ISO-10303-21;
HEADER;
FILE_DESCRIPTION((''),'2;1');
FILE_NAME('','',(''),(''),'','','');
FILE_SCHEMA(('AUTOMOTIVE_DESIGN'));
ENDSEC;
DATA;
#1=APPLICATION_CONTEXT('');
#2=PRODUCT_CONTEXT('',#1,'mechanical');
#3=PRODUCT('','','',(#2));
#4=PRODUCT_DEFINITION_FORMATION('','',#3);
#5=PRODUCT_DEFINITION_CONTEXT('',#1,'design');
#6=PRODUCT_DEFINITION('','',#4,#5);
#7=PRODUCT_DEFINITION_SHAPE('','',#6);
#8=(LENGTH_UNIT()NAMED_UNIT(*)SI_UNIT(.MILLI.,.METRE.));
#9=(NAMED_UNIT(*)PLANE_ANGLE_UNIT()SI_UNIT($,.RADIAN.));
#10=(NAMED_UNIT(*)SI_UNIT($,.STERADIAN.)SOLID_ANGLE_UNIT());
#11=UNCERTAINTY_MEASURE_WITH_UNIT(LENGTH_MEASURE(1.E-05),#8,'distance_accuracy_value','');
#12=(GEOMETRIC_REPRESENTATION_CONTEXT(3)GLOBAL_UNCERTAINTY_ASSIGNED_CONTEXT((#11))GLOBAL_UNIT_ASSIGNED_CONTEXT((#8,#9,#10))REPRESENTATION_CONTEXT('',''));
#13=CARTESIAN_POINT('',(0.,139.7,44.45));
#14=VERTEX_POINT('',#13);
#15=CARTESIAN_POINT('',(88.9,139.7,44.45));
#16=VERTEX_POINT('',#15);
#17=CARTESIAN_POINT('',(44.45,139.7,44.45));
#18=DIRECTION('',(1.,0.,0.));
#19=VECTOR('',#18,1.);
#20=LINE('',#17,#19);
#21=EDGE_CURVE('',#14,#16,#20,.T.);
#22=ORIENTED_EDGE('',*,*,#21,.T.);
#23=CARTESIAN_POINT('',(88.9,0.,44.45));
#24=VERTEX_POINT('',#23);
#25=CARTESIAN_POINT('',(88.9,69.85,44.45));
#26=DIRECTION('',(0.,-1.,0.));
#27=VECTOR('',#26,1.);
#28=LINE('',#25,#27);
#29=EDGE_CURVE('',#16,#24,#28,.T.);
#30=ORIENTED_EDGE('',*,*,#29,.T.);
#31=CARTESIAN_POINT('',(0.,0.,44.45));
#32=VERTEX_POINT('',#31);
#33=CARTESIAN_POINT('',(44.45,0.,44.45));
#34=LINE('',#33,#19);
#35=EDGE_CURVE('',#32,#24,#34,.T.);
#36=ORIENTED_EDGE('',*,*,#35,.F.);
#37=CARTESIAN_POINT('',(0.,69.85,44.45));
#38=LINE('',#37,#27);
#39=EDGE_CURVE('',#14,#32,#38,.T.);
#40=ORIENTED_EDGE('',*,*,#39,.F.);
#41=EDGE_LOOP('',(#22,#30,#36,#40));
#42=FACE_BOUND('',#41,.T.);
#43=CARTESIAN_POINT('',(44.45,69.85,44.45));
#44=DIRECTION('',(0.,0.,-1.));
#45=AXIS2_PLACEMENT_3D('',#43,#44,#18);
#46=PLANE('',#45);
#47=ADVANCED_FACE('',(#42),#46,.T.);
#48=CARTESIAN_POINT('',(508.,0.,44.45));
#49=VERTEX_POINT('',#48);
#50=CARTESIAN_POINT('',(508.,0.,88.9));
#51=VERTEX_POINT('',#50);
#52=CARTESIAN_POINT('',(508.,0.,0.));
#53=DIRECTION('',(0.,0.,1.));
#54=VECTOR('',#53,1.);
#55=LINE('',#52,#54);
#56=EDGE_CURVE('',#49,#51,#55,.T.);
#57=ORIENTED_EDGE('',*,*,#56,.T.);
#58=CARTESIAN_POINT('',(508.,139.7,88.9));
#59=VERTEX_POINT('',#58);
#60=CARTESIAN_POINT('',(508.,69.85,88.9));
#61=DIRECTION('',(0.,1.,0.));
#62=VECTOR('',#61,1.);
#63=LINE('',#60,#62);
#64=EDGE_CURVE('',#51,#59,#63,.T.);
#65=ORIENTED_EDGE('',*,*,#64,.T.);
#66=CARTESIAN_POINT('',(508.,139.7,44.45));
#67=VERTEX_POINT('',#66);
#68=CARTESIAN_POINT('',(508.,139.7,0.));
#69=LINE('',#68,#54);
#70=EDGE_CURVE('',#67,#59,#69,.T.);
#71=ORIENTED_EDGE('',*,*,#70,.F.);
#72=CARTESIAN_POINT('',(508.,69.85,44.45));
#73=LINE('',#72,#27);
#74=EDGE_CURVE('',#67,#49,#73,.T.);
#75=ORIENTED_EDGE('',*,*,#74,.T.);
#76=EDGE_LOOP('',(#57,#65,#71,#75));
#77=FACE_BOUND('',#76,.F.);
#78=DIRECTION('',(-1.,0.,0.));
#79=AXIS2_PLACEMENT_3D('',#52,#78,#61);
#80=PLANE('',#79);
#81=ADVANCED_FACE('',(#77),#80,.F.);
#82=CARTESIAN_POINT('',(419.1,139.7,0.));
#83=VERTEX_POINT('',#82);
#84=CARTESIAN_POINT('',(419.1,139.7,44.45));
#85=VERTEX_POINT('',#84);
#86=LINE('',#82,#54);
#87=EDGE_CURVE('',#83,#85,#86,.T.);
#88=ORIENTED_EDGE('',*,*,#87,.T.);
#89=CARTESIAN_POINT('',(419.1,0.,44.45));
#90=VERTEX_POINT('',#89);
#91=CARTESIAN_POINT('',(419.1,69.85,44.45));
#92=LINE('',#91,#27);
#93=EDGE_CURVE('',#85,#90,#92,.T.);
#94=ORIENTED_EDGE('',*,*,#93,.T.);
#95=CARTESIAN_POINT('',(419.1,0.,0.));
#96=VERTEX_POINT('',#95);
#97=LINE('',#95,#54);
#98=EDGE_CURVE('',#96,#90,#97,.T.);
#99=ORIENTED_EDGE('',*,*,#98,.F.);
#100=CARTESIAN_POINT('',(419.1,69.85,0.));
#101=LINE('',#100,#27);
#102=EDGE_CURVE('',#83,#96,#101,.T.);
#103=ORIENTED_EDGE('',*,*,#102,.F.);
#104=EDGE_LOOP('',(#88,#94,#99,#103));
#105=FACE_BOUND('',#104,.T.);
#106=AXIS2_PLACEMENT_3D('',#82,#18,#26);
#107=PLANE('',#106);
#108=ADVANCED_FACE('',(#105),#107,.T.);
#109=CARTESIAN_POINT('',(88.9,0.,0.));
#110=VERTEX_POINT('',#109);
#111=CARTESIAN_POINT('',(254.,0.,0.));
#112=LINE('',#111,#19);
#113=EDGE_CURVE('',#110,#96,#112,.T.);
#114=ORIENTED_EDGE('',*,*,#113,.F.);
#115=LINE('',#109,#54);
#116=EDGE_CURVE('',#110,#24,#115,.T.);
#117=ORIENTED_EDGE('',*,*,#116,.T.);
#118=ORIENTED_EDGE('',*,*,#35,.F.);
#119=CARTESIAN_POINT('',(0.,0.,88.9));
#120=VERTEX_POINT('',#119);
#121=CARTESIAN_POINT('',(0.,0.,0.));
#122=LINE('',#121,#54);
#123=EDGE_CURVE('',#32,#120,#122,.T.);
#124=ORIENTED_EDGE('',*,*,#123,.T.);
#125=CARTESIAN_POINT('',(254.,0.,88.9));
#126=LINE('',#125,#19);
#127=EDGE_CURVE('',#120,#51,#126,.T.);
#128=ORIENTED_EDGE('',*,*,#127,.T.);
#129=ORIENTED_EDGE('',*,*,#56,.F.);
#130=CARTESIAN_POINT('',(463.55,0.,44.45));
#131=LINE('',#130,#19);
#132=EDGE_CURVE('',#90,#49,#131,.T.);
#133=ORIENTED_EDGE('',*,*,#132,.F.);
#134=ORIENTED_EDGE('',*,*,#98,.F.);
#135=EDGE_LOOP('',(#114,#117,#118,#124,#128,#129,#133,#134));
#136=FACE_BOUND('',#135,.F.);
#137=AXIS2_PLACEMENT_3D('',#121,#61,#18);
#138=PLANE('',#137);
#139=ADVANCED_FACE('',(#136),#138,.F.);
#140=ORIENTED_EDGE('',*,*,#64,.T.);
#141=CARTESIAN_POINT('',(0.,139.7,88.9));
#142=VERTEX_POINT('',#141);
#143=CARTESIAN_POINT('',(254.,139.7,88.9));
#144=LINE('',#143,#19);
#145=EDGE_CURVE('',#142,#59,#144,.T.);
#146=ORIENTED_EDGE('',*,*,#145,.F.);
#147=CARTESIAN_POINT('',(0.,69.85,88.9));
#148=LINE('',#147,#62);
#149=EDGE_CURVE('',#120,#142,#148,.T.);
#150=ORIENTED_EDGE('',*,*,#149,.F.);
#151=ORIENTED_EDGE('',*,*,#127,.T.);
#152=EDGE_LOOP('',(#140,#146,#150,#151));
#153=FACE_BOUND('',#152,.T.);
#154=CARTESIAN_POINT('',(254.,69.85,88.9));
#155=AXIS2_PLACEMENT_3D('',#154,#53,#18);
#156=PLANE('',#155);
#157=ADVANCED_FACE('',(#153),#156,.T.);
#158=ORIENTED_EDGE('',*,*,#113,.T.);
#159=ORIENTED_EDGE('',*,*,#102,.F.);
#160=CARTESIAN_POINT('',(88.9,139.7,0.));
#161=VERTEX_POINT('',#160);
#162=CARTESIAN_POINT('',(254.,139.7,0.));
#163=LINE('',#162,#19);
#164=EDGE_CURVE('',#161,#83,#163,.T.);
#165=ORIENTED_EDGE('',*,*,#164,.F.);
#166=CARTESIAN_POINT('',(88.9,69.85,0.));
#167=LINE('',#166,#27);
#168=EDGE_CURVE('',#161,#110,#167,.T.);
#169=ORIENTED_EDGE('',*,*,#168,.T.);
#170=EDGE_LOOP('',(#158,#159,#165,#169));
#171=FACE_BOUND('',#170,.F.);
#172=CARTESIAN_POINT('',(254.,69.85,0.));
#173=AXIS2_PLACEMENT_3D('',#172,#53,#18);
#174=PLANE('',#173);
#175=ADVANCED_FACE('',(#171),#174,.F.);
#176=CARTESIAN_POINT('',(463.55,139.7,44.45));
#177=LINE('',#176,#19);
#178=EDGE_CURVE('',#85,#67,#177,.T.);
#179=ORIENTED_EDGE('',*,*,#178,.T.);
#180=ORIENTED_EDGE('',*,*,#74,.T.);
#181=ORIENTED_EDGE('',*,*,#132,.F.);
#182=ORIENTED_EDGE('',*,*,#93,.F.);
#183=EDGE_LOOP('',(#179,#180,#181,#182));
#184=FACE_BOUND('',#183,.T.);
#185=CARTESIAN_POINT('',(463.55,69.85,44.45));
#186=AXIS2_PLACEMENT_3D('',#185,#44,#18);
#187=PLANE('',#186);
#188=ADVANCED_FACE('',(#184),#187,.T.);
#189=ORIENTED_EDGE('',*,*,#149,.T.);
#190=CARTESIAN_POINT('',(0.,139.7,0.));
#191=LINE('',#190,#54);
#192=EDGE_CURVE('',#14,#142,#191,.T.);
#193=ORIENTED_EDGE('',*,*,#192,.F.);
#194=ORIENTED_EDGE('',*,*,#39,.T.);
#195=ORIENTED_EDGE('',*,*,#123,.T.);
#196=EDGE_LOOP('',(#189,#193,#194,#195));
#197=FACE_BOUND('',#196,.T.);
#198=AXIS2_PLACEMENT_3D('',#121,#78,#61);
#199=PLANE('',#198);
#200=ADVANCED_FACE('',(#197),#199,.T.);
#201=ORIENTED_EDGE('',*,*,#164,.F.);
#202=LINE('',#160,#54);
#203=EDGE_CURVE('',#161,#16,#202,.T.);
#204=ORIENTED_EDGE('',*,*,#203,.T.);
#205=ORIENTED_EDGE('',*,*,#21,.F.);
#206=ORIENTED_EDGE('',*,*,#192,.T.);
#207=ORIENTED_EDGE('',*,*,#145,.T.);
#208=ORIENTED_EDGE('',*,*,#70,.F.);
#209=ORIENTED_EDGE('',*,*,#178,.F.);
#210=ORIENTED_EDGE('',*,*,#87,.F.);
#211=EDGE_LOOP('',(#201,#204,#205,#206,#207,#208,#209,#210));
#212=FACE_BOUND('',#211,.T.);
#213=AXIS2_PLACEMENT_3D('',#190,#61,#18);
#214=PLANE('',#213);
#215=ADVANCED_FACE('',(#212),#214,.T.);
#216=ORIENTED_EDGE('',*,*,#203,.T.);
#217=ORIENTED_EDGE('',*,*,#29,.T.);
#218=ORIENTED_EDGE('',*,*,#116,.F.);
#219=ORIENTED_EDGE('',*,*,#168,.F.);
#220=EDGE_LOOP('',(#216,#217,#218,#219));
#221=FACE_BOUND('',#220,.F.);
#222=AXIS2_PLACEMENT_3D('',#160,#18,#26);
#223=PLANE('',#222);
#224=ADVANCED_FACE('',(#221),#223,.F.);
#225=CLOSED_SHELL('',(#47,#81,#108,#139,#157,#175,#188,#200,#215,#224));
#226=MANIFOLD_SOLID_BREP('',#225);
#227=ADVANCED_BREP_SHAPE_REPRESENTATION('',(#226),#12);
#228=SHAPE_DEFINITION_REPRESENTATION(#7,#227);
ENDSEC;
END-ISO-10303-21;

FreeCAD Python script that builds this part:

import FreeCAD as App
import Part
import Sketcher

V = App.Vector
Q = App.Units.Quantity


def add_polygon(sketch, points):
    """Adds a closed chain of lines whose ends are joined by coincident constraints."""
    first, n = sketch.GeometryCount, len(points)
    for a, b in zip(points, points[1:] + points[:1]):
        sketch.addGeometry(Part.LineSegment(App.Vector(*a, 0), App.Vector(*b, 0)), False)
    for i in range(n):
        sketch.addConstraint(Sketcher.Constraint("Coincident", first + i, 2, first + (i + 1) % n, 1))

doc = App.newDocument("Part")
body = doc.addObject("PartDesign::Body", "Body")

# Sketch on XY plane
sketch1 = body.newObject("Sketcher::SketchObject", "Sketch")
sketch1.AttachmentSupport = (doc.getObject("XY_Plane"), [""])
sketch1.MapMode = "FlatFace"
add_polygon(sketch1, [(0, 140), (0, 0), (508, 0), (508, 140)])  # lines 0-3
sketch1.addConstraint([
    Sketcher.Constraint("Vertical", 0),
    Sketcher.Constraint("Horizontal", 1),
    Sketcher.Constraint("Vertical", 2),
    Sketcher.Constraint("Horizontal", 3),
    Sketcher.Constraint("Coincident", 0, 2, -1, 1),
    Sketcher.Constraint("DistanceX", 1, 1, 1, 2, Q("20 in")),
    Sketcher.Constraint("DistanceY", 0, 2, 0, 1, Q("5.5 in")),
])
pad1 = body.newObject("PartDesign::Pad", "Pad")
pad1.Profile = sketch1
pad1.Length = Q("3.5 in")

# Sketch on XY plane
sketch2 = body.newObject("Sketcher::SketchObject", "Sketch001")
sketch2.AttachmentSupport = (doc.getObject("XY_Plane"), [""])
sketch2.MapMode = "FlatFace"
add_polygon(sketch2, [(0, 0), (0, 140), (89, 140), (89, 0)])  # lines 0-3
add_polygon(sketch2, [(419, 0), (419, 140), (508, 140), (508, 0)])  # lines 4-7
sketch2.addConstraint([
    Sketcher.Constraint("Vertical", 0),
    Sketcher.Constraint("Horizontal", 1),
    Sketcher.Constraint("Vertical", 2),
    Sketcher.Constraint("Horizontal", 3),
    Sketcher.Constraint("Vertical", 4),
    Sketcher.Constraint("Horizontal", 5),
    Sketcher.Constraint("Vertical", 6),
    Sketcher.Constraint("Horizontal", 7),
    Sketcher.Constraint("Coincident", 3, 2, -1, 1),
    Sketcher.Constraint("PointOnObject", 6, 2, -1),
    Sketcher.Constraint("Horizontal", 1, 2, 4, 2),
    Sketcher.Constraint("Equal", 3, 5),
    Sketcher.Constraint("DistanceX", 1, 1, 1, 2, Q("3.5 in")),
    Sketcher.Constraint("DistanceY", 0, 1, 0, 2, Q("5.5 in")),
    Sketcher.Constraint("DistanceX", -1, 1, 5, 2, Q("20 in")),
])
pocket1 = body.newObject("PartDesign::Pocket", "Pocket")
pocket1.Profile = sketch2
pocket1.Length = Q("1.75 in")
pocket1.Reversed = True

doc.recompute()
